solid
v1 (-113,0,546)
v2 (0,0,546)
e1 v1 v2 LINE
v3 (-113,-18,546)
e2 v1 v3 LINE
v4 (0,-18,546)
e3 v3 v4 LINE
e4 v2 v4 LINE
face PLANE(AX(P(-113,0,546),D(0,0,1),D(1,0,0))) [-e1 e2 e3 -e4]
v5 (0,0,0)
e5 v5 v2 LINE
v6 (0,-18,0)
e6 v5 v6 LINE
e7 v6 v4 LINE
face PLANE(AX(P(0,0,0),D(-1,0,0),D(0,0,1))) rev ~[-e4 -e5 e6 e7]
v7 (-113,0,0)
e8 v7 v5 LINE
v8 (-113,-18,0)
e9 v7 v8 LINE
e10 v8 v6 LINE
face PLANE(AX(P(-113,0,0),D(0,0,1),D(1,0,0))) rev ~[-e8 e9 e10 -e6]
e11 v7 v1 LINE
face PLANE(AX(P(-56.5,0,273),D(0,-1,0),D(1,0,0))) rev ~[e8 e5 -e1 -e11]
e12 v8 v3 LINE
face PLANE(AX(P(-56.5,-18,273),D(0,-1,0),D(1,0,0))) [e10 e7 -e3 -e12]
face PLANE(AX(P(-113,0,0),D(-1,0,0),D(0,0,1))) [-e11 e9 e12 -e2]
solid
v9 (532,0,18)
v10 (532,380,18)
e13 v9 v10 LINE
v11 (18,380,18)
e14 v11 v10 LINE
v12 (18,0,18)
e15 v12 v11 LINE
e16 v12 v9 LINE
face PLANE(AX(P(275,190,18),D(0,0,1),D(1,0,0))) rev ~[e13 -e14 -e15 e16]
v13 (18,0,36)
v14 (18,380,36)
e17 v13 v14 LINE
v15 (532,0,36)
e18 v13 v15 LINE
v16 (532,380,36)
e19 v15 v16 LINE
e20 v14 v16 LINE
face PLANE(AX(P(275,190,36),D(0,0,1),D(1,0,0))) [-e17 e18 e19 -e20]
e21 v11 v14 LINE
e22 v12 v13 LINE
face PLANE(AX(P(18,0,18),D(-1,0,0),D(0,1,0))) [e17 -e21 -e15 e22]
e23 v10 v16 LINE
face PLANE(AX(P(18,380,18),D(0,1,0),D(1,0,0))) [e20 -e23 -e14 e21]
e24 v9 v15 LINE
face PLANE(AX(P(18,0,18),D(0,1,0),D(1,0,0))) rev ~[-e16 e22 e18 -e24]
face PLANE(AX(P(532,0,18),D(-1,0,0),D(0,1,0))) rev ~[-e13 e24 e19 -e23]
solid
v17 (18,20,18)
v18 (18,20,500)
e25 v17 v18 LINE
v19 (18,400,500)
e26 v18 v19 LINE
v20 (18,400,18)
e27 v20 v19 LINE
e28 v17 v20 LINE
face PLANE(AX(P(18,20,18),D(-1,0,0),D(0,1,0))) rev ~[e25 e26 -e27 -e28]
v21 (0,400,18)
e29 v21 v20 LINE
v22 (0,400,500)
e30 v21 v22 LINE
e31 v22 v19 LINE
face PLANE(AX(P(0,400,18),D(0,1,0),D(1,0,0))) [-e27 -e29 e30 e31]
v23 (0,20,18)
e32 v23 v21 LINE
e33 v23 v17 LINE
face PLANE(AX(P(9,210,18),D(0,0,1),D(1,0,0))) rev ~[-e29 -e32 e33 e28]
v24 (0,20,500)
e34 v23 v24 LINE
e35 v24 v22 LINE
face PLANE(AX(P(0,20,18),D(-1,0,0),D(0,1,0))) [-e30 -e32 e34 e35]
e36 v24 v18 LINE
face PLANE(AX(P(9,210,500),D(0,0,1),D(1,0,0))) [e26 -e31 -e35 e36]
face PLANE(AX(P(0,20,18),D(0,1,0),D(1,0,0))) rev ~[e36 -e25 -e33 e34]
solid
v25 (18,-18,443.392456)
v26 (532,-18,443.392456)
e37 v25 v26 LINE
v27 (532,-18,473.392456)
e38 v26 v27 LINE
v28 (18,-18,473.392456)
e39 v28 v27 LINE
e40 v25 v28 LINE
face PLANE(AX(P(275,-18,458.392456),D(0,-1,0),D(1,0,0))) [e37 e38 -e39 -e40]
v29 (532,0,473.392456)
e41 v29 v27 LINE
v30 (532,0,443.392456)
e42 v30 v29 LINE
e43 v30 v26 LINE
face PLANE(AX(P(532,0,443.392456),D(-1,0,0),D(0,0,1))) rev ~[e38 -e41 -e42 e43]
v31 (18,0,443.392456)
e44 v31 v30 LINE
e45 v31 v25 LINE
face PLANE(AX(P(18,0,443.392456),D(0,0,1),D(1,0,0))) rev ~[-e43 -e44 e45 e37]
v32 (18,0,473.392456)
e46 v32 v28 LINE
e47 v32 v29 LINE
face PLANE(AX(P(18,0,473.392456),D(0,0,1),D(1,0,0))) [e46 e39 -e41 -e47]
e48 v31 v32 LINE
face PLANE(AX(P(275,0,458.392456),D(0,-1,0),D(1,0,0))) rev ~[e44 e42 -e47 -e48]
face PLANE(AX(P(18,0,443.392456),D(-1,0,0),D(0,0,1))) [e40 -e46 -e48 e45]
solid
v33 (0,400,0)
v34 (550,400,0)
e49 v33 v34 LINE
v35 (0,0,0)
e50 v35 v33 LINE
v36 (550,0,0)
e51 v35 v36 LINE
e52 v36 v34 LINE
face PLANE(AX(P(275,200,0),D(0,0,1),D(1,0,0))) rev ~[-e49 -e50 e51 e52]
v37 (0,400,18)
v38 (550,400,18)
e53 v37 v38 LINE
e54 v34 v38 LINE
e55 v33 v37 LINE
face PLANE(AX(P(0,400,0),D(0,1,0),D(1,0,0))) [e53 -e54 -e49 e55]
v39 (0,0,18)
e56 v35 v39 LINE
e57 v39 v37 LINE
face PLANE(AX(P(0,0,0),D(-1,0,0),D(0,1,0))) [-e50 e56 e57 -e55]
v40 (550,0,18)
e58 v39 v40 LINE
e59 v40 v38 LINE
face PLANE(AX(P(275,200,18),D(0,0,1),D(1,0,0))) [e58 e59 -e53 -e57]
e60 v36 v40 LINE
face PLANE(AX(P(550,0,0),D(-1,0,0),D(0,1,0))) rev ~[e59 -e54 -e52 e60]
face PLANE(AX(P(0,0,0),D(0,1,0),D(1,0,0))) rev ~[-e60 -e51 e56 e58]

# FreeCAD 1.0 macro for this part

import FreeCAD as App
import Part
import Sketcher
Q = App.Units.Quantity

doc = App.newDocument("Part")
params = doc.addObject("Spreadsheet::Sheet", "Params")
for row, (alias, value) in enumerate([
    ("sketch1_width", "550 mm"),
    ("sketch1_height", "400 mm"),
    ("pad1_length", "18 mm"),
    ("sketch2_width", "18 mm"),
    ("sketch2_height", "380 mm"),
    ("pad2_length", "482 mm"),
    ("sketch3_width", "514 mm"),
    ("sketch3_height", "30 mm"),
    ("pad3_length", "18 mm"),
    ("sketch4_width", "514 mm"),
    ("sketch4_height", "380 mm"),
    ("pad4_length", "18 mm"),
    ("sketch5_width", "113 mm"),
    ("sketch5_height", "546 mm"),
    ("pad5_length", "18 mm"),
], start=1):
    params.set(f"A{row}", alias)
    params.set(f"B{row}", "=" + value)
    params.setAlias(f"B{row}", alias)

body = doc.addObject("PartDesign::Body", "Body")

# Sketch on XY plane
sketch1 = body.newObject("Sketcher::SketchObject", "Sketch")
sketch1.AttachmentSupport = (doc.getObject("XY_Plane"), [""])
sketch1.MapMode = "FlatFace"
sketch1.addGeometry(Part.LineSegment(App.Vector(0, 400, 0), App.Vector(0, 0, 0)), False)
sketch1.addGeometry(Part.LineSegment(App.Vector(0, 0, 0), App.Vector(550, 0, 0)), False)
sketch1.addGeometry(Part.LineSegment(App.Vector(550, 0, 0), App.Vector(550, 400, 0)), False)
sketch1.addGeometry(Part.LineSegment(App.Vector(550, 400, 0), App.Vector(0, 400, 0)), False)
sketch1.addConstraint(Sketcher.Constraint("Coincident", 0, 2, 1, 1))
sketch1.addConstraint(Sketcher.Constraint("Coincident", 1, 2, 2, 1))
sketch1.addConstraint(Sketcher.Constraint("Coincident", 2, 2, 3, 1))
sketch1.addConstraint(Sketcher.Constraint("Coincident", 3, 2, 0, 1))
sketch1.addConstraint(Sketcher.Constraint("Vertical", 0))
sketch1.addConstraint(Sketcher.Constraint("Horizontal", 1))
sketch1.addConstraint(Sketcher.Constraint("Vertical", 2))
sketch1.addConstraint(Sketcher.Constraint("Horizontal", 3))
sketch1.addConstraint(Sketcher.Constraint("Coincident", 0, 2, -1, 1))
sketch1.addConstraint(Sketcher.Constraint("DistanceX", 1, 1, 1, 2, Q("550 mm")))
sketch1.addConstraint(Sketcher.Constraint("DistanceY", 0, 2, 0, 1, Q("400 mm")))
sketch1.setExpression("Constraints[9]", "Params.sketch1_width")
sketch1.setExpression("Constraints[10]", "Params.sketch1_height")
pad1 = body.newObject("PartDesign::Pad", "Pad")
pad1.Profile = sketch1
pad1.setExpression("Length", "Params.pad1_length")
body2 = doc.addObject("PartDesign::Body", "Body001")

# Sketch on XY plane
sketch2 = body2.newObject("Sketcher::SketchObject", "Sketch001")
sketch2.AttachmentSupport = (doc.getObject("XY_Plane001"), [""])
sketch2.MapMode = "FlatFace"
sketch2.AttachmentOffset = App.Placement(App.Vector(0, 0, 18), App.Rotation())
sketch2.addGeometry(Part.LineSegment(App.Vector(0, 400, 0), App.Vector(0, 20, 0)), False)
sketch2.addGeometry(Part.LineSegment(App.Vector(0, 20, 0), App.Vector(18, 20, 0)), False)
sketch2.addGeometry(Part.LineSegment(App.Vector(18, 20, 0), App.Vector(18, 400, 0)), False)
sketch2.addGeometry(Part.LineSegment(App.Vector(18, 400, 0), App.Vector(0, 400, 0)), False)
sketch2.addConstraint(Sketcher.Constraint("Coincident", 0, 2, 1, 1))
sketch2.addConstraint(Sketcher.Constraint("Coincident", 1, 2, 2, 1))
sketch2.addConstraint(Sketcher.Constraint("Coincident", 2, 2, 3, 1))
sketch2.addConstraint(Sketcher.Constraint("Coincident", 3, 2, 0, 1))
sketch2.addConstraint(Sketcher.Constraint("Vertical", 0))
sketch2.addConstraint(Sketcher.Constraint("Horizontal", 1))
sketch2.addConstraint(Sketcher.Constraint("Vertical", 2))
sketch2.addConstraint(Sketcher.Constraint("Horizontal", 3))
sketch2.addConstraint(Sketcher.Constraint("PointOnObject", 0, 2, -2))
sketch2.addConstraint(Sketcher.Constraint("DistanceX", 1, 1, 1, 2, Q("18 mm")))
sketch2.addConstraint(Sketcher.Constraint("DistanceY", 0, 2, 0, 1, Q("380 mm")))
sketch2.addConstraint(Sketcher.Constraint("DistanceY", -1, 1, 0, 2, Q("20 mm")))
sketch2.setExpression("Constraints[9]", "Params.sketch2_width")
sketch2.setExpression("Constraints[10]", "Params.sketch2_height")
pad2 = body2.newObject("PartDesign::Pad", "Pad001")
pad2.Profile = sketch2
pad2.setExpression("Length", "Params.pad2_length")
body3 = doc.addObject("PartDesign::Body", "Body002")

# Sketch on XZ plane
sketch3 = body3.newObject("Sketcher::SketchObject", "Sketch002")
sketch3.AttachmentSupport = (doc.getObject("XZ_Plane002"), [""])
sketch3.MapMode = "FlatFace"
sketch3.addGeometry(Part.LineSegment(App.Vector(18, 473.392456, 0), App.Vector(18, 443.392456, 0)), False)
sketch3.addGeometry(Part.LineSegment(App.Vector(18, 443.392456, 0), App.Vector(532, 443.392456, 0)), False)
sketch3.addGeometry(Part.LineSegment(App.Vector(532, 443.392456, 0), App.Vector(532, 473.392456, 0)), False)
sketch3.addGeometry(Part.LineSegment(App.Vector(532, 473.392456, 0), App.Vector(18, 473.392456, 0)), False)
sketch3.addConstraint(Sketcher.Constraint("Coincident", 0, 2, 1, 1))
sketch3.addConstraint(Sketcher.Constraint("Coincident", 1, 2, 2, 1))
sketch3.addConstraint(Sketcher.Constraint("Coincident", 2, 2, 3, 1))
sketch3.addConstraint(Sketcher.Constraint("Coincident", 3, 2, 0, 1))
sketch3.addConstraint(Sketcher.Constraint("Vertical", 0))
sketch3.addConstraint(Sketcher.Constraint("Horizontal", 1))
sketch3.addConstraint(Sketcher.Constraint("Vertical", 2))
sketch3.addConstraint(Sketcher.Constraint("Horizontal", 3))
sketch3.addConstraint(Sketcher.Constraint("DistanceX", 1, 1, 1, 2, Q("514 mm")))
sketch3.addConstraint(Sketcher.Constraint("DistanceY", 0, 2, 0, 1, Q("30 mm")))
sketch3.addConstraint(Sketcher.Constraint("DistanceX", -1, 1, 0, 2, Q("18 mm")))
sketch3.addConstraint(Sketcher.Constraint("DistanceY", -1, 1, 0, 2, Q("443.392456 mm")))
sketch3.setExpression("Constraints[8]", "Params.sketch3_width")
sketch3.setExpression("Constraints[9]", "Params.sketch3_height")
pad3 = body3.newObject("PartDesign::Pad", "Pad002")
pad3.Profile = sketch3
pad3.setExpression("Length", "Params.pad3_length")
body4 = doc.addObject("PartDesign::Body", "Body003")

# Sketch on XY plane
sketch4 = body4.newObject("Sketcher::SketchObject", "Sketch003")
sketch4.AttachmentSupport = (doc.getObject("XY_Plane003"), [""])
sketch4.MapMode = "FlatFace"
sketch4.AttachmentOffset = App.Placement(App.Vector(0, 0, 18), App.Rotation())
sketch4.addGeometry(Part.LineSegment(App.Vector(18, 380, 0), App.Vector(18, 0, 0)), False)
sketch4.addGeometry(Part.LineSegment(App.Vector(18, 0, 0), App.Vector(532, 0, 0)), False)
sketch4.addGeometry(Part.LineSegment(App.Vector(532, 0, 0), App.Vector(532, 380, 0)), False)
sketch4.addGeometry(Part.LineSegment(App.Vector(532, 380, 0), App.Vector(18, 380, 0)), False)
sketch4.addConstraint(Sketcher.Constraint("Coincident", 0, 2, 1, 1))
sketch4.addConstraint(Sketcher.Constraint("Coincident", 1, 2, 2, 1))
sketch4.addConstraint(Sketcher.Constraint("Coincident", 2, 2, 3, 1))
sketch4.addConstraint(Sketcher.Constraint("Coincident", 3, 2, 0, 1))
sketch4.addConstraint(Sketcher.Constraint("Vertical", 0))
sketch4.addConstraint(Sketcher.Constraint("Horizontal", 1))
sketch4.addConstraint(Sketcher.Constraint("Vertical", 2))
sketch4.addConstraint(Sketcher.Constraint("Horizontal", 3))
sketch4.addConstraint(Sketcher.Constraint("PointOnObject", 0, 2, -1))
sketch4.addConstraint(Sketcher.Constraint("DistanceX", 1, 1, 1, 2, Q("514 mm")))
sketch4.addConstraint(Sketcher.Constraint("DistanceY", 0, 2, 0, 1, Q("380 mm")))
sketch4.addConstraint(Sketcher.Constraint("DistanceX", -1, 1, 0, 2, Q("18 mm")))
sketch4.setExpression("Constraints[9]", "Params.sketch4_width")
sketch4.setExpression("Constraints[10]", "Params.sketch4_height")
pad4 = body4.newObject("PartDesign::Pad", "Pad003")
pad4.Profile = sketch4
pad4.setExpression("Length", "Params.pad4_length")
body5 = doc.addObject("PartDesign::Body", "Body004")

# Sketch on XZ plane
sketch5 = body5.newObject("Sketcher::SketchObject", "Sketch004")
sketch5.AttachmentSupport = (doc.getObject("XZ_Plane004"), [""])
sketch5.MapMode = "FlatFace"
sketch5.addGeometry(Part.LineSegment(App.Vector(-113, 546, 0), App.Vector(-113, 0, 0)), False)
sketch5.addGeometry(Part.LineSegment(App.Vector(-113, 0, 0), App.Vector(0, 0, 0)), False)
sketch5.addGeometry(Part.LineSegment(App.Vector(0, 0, 0), App.Vector(0, 546, 0)), False)
sketch5.addGeometry(Part.LineSegment(App.Vector(0, 546, 0), App.Vector(-113, 546, 0)), False)
sketch5.addConstraint(Sketcher.Constraint("Coincident", 0, 2, 1, 1))
sketch5.addConstraint(Sketcher.Constraint("Coincident", 1, 2, 2, 1))
sketch5.addConstraint(Sketcher.Constraint("Coincident", 2, 2, 3, 1))
sketch5.addConstraint(Sketcher.Constraint("Coincident", 3, 2, 0, 1))
sketch5.addConstraint(Sketcher.Constraint("Vertical", 0))
sketch5.addConstraint(Sketcher.Constraint("Horizontal", 1))
sketch5.addConstraint(Sketcher.Constraint("Vertical", 2))
sketch5.addConstraint(Sketcher.Constraint("Horizontal", 3))
sketch5.addConstraint(Sketcher.Constraint("Coincident", 1, 2, -1, 1))
sketch5.addConstraint(Sketcher.Constraint("DistanceX", 1, 1, 1, 2, Q("113 mm")))
sketch5.addConstraint(Sketcher.Constraint("DistanceY", 0, 2, 0, 1, Q("546 mm")))
sketch5.setExpression("Constraints[9]", "Params.sketch5_width")
sketch5.setExpression("Constraints[10]", "Params.sketch5_height")
pad5 = body5.newObject("PartDesign::Pad", "Pad004")
pad5.Profile = sketch5
pad5.setExpression("Length", "Params.pad5_length")

doc.recompute()
